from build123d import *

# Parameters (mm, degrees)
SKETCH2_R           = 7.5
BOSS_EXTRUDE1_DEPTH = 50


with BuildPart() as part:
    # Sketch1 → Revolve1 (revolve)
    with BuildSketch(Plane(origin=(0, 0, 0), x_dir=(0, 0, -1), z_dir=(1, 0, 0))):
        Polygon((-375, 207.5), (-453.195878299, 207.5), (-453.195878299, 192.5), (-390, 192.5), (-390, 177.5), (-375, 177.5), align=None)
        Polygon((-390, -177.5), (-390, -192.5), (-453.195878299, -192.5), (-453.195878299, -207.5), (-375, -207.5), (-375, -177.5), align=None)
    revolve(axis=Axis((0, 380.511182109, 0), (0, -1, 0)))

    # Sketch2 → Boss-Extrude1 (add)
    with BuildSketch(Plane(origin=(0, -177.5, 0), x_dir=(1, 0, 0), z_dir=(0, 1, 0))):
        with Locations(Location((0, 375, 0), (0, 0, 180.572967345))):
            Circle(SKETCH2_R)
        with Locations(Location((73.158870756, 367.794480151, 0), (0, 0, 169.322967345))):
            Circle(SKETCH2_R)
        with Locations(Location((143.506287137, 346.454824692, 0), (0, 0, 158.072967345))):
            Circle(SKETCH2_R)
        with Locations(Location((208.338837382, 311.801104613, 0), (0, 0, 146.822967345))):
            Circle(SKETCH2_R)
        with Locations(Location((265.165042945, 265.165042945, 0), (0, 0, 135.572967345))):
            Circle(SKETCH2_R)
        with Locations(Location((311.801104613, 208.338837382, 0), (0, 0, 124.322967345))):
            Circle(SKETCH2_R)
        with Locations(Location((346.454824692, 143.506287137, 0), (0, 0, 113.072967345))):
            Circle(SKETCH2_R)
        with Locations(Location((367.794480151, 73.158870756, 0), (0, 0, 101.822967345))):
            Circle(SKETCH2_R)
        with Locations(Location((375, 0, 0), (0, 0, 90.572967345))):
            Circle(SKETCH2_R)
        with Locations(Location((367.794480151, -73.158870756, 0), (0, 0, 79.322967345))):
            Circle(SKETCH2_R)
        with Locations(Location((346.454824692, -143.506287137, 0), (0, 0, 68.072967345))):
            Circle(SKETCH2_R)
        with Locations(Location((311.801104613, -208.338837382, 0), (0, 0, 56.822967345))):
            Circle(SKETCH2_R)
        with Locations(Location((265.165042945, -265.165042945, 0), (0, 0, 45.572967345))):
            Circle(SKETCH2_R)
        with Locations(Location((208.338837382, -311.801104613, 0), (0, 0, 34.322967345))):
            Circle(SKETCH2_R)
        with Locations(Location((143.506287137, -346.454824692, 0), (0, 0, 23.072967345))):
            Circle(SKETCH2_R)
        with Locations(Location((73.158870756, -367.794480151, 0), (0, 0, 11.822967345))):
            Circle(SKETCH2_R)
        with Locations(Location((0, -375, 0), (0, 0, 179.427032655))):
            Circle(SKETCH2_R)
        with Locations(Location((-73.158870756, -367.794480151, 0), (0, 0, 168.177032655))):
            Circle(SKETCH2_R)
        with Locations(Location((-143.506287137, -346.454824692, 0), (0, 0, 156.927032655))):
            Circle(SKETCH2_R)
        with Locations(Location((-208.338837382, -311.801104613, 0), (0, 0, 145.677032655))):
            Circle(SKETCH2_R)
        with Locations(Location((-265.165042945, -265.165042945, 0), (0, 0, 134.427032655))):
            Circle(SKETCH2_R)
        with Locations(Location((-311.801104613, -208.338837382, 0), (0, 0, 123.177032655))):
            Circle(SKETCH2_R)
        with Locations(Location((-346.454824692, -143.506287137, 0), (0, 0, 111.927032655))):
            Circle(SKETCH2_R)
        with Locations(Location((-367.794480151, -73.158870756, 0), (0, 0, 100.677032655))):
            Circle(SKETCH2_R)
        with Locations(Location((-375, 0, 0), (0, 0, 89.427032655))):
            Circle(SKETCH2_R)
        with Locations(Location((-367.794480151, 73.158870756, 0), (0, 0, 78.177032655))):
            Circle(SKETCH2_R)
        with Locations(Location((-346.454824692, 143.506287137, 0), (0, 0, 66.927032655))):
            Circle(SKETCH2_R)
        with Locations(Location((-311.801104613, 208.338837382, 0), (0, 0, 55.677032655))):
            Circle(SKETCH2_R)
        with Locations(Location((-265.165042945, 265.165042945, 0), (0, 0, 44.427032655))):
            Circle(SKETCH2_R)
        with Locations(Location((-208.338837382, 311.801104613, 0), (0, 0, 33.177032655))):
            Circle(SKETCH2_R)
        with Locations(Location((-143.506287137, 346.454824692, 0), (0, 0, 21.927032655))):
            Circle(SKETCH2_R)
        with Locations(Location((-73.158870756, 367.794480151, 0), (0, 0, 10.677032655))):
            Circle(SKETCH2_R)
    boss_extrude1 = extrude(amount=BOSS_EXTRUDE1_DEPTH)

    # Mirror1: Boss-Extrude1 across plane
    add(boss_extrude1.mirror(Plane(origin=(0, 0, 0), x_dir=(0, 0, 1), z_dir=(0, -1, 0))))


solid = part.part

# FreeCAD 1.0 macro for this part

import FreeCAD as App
import Part
import Sketcher

V = App.Vector


def add_polygon(sketch, points):
    """Adds a closed chain of lines whose ends are joined by coincident constraints."""
    first, n = sketch.GeometryCount, len(points)
    for a, b in zip(points, points[1:] + points[:1]):
        sketch.addGeometry(Part.LineSegment(App.Vector(*a, 0), App.Vector(*b, 0)), False)
    for i in range(n):
        sketch.addConstraint(Sketcher.Constraint("Coincident", first + i, 2, first + (i + 1) % n, 1))

doc = App.newDocument("Part")
body = doc.addObject("PartDesign::Body", "Body")
body.AllowCompound = True

sketch1 = doc.addObject("Sketcher::SketchObject", "Sketch")
body.addObject(sketch1)
sketch1.AttachmentSupport = (doc.YZ_Plane, [""])
sketch1.MapMode = "FlatFace"
add_polygon(sketch1, [(208, 375), (208, 453), (192, 453), (192, 390), (178, 390), (178, 375)])
add_polygon(sketch1, [(-178, 390), (-192, 390), (-192, 453), (-208, 453), (-208, 375), (-178, 375)])
sketch1.addConstraint([
    Sketcher.Constraint("Vertical", 0),
    Sketcher.Constraint("Horizontal", 1),
    Sketcher.Constraint("Vertical", 2),
    Sketcher.Constraint("Horizontal", 3),
    Sketcher.Constraint("Vertical", 4),
    Sketcher.Constraint("Horizontal", 5),
    Sketcher.Constraint("Horizontal", 6),
    Sketcher.Constraint("Vertical", 7),
    Sketcher.Constraint("Horizontal", 8),
    Sketcher.Constraint("Vertical", 9),
    Sketcher.Constraint("Horizontal", 10),
    Sketcher.Constraint("Vertical", 11),
    Sketcher.Constraint("Symmetric", 2, 2, 6, 2, -2),
    Sketcher.Constraint("Symmetric", 0, 2, 8, 2, -2),
    Sketcher.Constraint("Symmetric", 4, 2, 10, 2, -2),
    Sketcher.Constraint("Equal", 1, 3),
    Sketcher.Constraint("Equal", 8, 4),
    Sketcher.Constraint("DistanceX", 1, 2, 1, 1, 15.0),
    Sketcher.Constraint("DistanceY", -1, 1, 2, 2, 390.0),
    Sketcher.Constraint("DistanceX", 6, 2, 3, 2, 370.0),
    Sketcher.Constraint("DistanceY", 0, 1, 0, 2, 78.195878),
])
revolution = doc.addObject("PartDesign::Revolution", "Revolution")
body.addObject(revolution)
revolution.Profile = sketch1
revolution.ReferenceAxis = (sketch1, ["H_Axis"])
revolution.Angle = 360

sketch2 = doc.addObject("Sketcher::SketchObject", "Sketch001")
body.addObject(sketch2)
sketch2.AttachmentSupport = (doc.XZ_Plane, [""])
sketch2.MapMode = "FlatFace"
sketch2.AttachmentOffset = App.Placement(V(0, 0, 177.5), App.Rotation())
sketch2.addGeometry([
    Part.Circle(V(0, -375, 0), V(0, 0, 1), 8),
    Part.Circle(V(73, -368, 0), V(0, 0, 1), 8),
    Part.Circle(V(144, -346, 0), V(0, 0, 1), 8),
    Part.Circle(V(208, -312, 0), V(0, 0, 1), 8),
    Part.Circle(V(265, -265, 0), V(0, 0, 1), 8),
    Part.Circle(V(312, -208, 0), V(0, 0, 1), 8),
    Part.Circle(V(346, -144, 0), V(0, 0, 1), 8),
    Part.Circle(V(368, -73, 0), V(0, 0, 1), 8),
    Part.Circle(V(375, 0, 0), V(0, 0, 1), 8),
    Part.Circle(V(368, 73, 0), V(0, 0, 1), 8),
    Part.Circle(V(346, 144, 0), V(0, 0, 1), 8),
    Part.Circle(V(312, 208, 0), V(0, 0, 1), 8),
    Part.Circle(V(265, 265, 0), V(0, 0, 1), 8),
    Part.Circle(V(208, 312, 0), V(0, 0, 1), 8),
    Part.Circle(V(144, 346, 0), V(0, 0, 1), 8),
    Part.Circle(V(73, 368, 0), V(0, 0, 1), 8),
    Part.Circle(V(0, 375, 0), V(0, 0, 1), 8),
    Part.Circle(V(-73, 368, 0), V(0, 0, 1), 8),
    Part.Circle(V(-144, 346, 0), V(0, 0, 1), 8),
    Part.Circle(V(-208, 312, 0), V(0, 0, 1), 8),
    Part.Circle(V(-265, 265, 0), V(0, 0, 1), 8),
    Part.Circle(V(-312, 208, 0), V(0, 0, 1), 8),
    Part.Circle(V(-346, 144, 0), V(0, 0, 1), 8),
    Part.Circle(V(-368, 73, 0), V(0, 0, 1), 8),
    Part.Circle(V(-375, 0, 0), V(0, 0, 1), 8),
    Part.Circle(V(-368, -73, 0), V(0, 0, 1), 8),
    Part.Circle(V(-346, -144, 0), V(0, 0, 1), 8),
    Part.Circle(V(-312, -208, 0), V(0, 0, 1), 8),
    Part.Circle(V(-265, -265, 0), V(0, 0, 1), 8),
    Part.Circle(V(-208, -312, 0), V(0, 0, 1), 8),
    Part.Circle(V(-144, -346, 0), V(0, 0, 1), 8),
    Part.Circle(V(-73, -368, 0), V(0, 0, 1), 8),
], False)
sketch2.addConstraint([
    Sketcher.Constraint("Equal", 0, 1),
    Sketcher.Constraint("Equal", 1, 2),
    Sketcher.Constraint("Equal", 2, 3),
    Sketcher.Constraint("Equal", 3, 4),
    Sketcher.Constraint("Equal", 4, 5),
    Sketcher.Constraint("Equal", 5, 6),
    Sketcher.Constraint("Equal", 6, 7),
    Sketcher.Constraint("Equal", 7, 8),
    Sketcher.Constraint("Equal", 8, 9),
    Sketcher.Constraint("Equal", 9, 10),
    Sketcher.Constraint("Equal", 10, 11),
    Sketcher.Constraint("Equal", 11, 12),
    Sketcher.Constraint("Equal", 12, 13),
    Sketcher.Constraint("Equal", 13, 14),
    Sketcher.Constraint("Equal", 14, 15),
    Sketcher.Constraint("Equal", 15, 16),
    Sketcher.Constraint("Equal", 16, 17),
    Sketcher.Constraint("Equal", 17, 18),
    Sketcher.Constraint("Equal", 18, 19),
    Sketcher.Constraint("Equal", 19, 20),
    Sketcher.Constraint("Equal", 20, 21),
    Sketcher.Constraint("Equal", 21, 22),
    Sketcher.Constraint("Equal", 22, 23),
    Sketcher.Constraint("Equal", 23, 24),
    Sketcher.Constraint("Equal", 24, 25),
    Sketcher.Constraint("Equal", 25, 26),
    Sketcher.Constraint("Equal", 26, 27),
    Sketcher.Constraint("Equal", 27, 28),
    Sketcher.Constraint("Equal", 28, 29),
    Sketcher.Constraint("Equal", 29, 30),
    Sketcher.Constraint("Equal", 30, 31),
    Sketcher.Constraint("Symmetric", 0, 3, 16, 3, -1, 1),
    Sketcher.Constraint("Symmetric", 1, 3, 17, 3, -1, 1),
    Sketcher.Constraint("Symmetric", 2, 3, 18, 3, -1, 1),
    Sketcher.Constraint("Symmetric", 3, 3, 19, 3, -1, 1),
    Sketcher.Constraint("Symmetric", 4, 3, 20, 3, -1, 1),
    Sketcher.Constraint("Symmetric", 5, 3, 21, 3, -1, 1),
    Sketcher.Constraint("Symmetric", 6, 3, 22, 3, -1, 1),
    Sketcher.Constraint("Symmetric", 7, 3, 23, 3, -1, 1),
    Sketcher.Constraint("Symmetric", 8, 3, 24, 3, -1, 1),
    Sketcher.Constraint("Symmetric", 9, 3, 25, 3, -1, 1),
    Sketcher.Constraint("Symmetric", 10, 3, 26, 3, -1, 1),
    Sketcher.Constraint("Symmetric", 11, 3, 27, 3, -1, 1),
    Sketcher.Constraint("Symmetric", 12, 3, 28, 3, -1, 1),
    Sketcher.Constraint("Symmetric", 13, 3, 29, 3, -1, 1),
    Sketcher.Constraint("Symmetric", 14, 3, 30, 3, -1, 1),
    Sketcher.Constraint("Symmetric", 15, 3, 31, 3, -1, 1),
    Sketcher.Constraint("Symmetric", 15, 3, 17, 3, -2),
    Sketcher.Constraint("Symmetric", 14, 3, 18, 3, -2),
    Sketcher.Constraint("Symmetric", 13, 3, 19, 3, -2),
    Sketcher.Constraint("Symmetric", 12, 3, 20, 3, -2),
    Sketcher.Constraint("Symmetric", 11, 3, 21, 3, -2),
    Sketcher.Constraint("Symmetric", 10, 3, 22, 3, -2),
    Sketcher.Constraint("Symmetric", 9, 3, 23, 3, -2),
    Sketcher.Constraint("PointOnObject", 0, 3, -2),
    Sketcher.Constraint("PointOnObject", 8, 3, -1),
    Sketcher.Constraint("Diameter", 0, 15.0),
    Sketcher.Constraint("DistanceY", 0, 3, -1, 1, 375.0),
    Sketcher.Constraint("DistanceX", -1, 1, 8, 3, 375.0),
    Sketcher.Constraint("DistanceX", -1, 1, 1, 3, 73.158871),
    Sketcher.Constraint("DistanceY", 1, 3, -1, 1, 367.79448),
    Sketcher.Constraint("DistanceX", -1, 1, 7, 3, 367.79448),
    Sketcher.Constraint("DistanceY", 7, 3, -1, 1, 73.158871),
    Sketcher.Constraint("DistanceX", 2, 3, 3, 3, 64.83255),
    Sketcher.Constraint("DistanceY", 2, 3, 3, 3, 34.65372),
    Sketcher.Constraint("DistanceY", 3, 3, 4, 3, 46.636062),
    Sketcher.Constraint("DistanceX", 4, 3, 5, 3, 46.636062),
    Sketcher.Constraint("DistanceX", 5, 3, 6, 3, 34.65372),
    Sketcher.Constraint("DistanceY", 5, 3, 6, 3, 64.83255),
    Sketcher.Constraint("DistanceY", 5, 3, 9, 3, 281.497708),
    Sketcher.Constraint("DistanceX", 17, 3, 13, 3, 281.497708),
    Sketcher.Constraint("DistanceY", 2, 3, -1, 1, 346.454825),
    Sketcher.Constraint("DistanceX", -1, 1, 4, 3, 265.165043),
])
pad1 = doc.addObject("PartDesign::Pad", "Pad")
body.addObject(pad1)
pad1.Profile = sketch2
pad1.Length = 50
pad1.Reversed = True
doc.recompute()

mirrored = doc.addObject("PartDesign::Mirrored", "Mirrored")
body.addObject(mirrored)
mirrored.Originals = [pad1]
mirrored.MirrorPlane = (doc.XZ_Plane, [""])
body.Tip = mirrored

doc.recompute()
